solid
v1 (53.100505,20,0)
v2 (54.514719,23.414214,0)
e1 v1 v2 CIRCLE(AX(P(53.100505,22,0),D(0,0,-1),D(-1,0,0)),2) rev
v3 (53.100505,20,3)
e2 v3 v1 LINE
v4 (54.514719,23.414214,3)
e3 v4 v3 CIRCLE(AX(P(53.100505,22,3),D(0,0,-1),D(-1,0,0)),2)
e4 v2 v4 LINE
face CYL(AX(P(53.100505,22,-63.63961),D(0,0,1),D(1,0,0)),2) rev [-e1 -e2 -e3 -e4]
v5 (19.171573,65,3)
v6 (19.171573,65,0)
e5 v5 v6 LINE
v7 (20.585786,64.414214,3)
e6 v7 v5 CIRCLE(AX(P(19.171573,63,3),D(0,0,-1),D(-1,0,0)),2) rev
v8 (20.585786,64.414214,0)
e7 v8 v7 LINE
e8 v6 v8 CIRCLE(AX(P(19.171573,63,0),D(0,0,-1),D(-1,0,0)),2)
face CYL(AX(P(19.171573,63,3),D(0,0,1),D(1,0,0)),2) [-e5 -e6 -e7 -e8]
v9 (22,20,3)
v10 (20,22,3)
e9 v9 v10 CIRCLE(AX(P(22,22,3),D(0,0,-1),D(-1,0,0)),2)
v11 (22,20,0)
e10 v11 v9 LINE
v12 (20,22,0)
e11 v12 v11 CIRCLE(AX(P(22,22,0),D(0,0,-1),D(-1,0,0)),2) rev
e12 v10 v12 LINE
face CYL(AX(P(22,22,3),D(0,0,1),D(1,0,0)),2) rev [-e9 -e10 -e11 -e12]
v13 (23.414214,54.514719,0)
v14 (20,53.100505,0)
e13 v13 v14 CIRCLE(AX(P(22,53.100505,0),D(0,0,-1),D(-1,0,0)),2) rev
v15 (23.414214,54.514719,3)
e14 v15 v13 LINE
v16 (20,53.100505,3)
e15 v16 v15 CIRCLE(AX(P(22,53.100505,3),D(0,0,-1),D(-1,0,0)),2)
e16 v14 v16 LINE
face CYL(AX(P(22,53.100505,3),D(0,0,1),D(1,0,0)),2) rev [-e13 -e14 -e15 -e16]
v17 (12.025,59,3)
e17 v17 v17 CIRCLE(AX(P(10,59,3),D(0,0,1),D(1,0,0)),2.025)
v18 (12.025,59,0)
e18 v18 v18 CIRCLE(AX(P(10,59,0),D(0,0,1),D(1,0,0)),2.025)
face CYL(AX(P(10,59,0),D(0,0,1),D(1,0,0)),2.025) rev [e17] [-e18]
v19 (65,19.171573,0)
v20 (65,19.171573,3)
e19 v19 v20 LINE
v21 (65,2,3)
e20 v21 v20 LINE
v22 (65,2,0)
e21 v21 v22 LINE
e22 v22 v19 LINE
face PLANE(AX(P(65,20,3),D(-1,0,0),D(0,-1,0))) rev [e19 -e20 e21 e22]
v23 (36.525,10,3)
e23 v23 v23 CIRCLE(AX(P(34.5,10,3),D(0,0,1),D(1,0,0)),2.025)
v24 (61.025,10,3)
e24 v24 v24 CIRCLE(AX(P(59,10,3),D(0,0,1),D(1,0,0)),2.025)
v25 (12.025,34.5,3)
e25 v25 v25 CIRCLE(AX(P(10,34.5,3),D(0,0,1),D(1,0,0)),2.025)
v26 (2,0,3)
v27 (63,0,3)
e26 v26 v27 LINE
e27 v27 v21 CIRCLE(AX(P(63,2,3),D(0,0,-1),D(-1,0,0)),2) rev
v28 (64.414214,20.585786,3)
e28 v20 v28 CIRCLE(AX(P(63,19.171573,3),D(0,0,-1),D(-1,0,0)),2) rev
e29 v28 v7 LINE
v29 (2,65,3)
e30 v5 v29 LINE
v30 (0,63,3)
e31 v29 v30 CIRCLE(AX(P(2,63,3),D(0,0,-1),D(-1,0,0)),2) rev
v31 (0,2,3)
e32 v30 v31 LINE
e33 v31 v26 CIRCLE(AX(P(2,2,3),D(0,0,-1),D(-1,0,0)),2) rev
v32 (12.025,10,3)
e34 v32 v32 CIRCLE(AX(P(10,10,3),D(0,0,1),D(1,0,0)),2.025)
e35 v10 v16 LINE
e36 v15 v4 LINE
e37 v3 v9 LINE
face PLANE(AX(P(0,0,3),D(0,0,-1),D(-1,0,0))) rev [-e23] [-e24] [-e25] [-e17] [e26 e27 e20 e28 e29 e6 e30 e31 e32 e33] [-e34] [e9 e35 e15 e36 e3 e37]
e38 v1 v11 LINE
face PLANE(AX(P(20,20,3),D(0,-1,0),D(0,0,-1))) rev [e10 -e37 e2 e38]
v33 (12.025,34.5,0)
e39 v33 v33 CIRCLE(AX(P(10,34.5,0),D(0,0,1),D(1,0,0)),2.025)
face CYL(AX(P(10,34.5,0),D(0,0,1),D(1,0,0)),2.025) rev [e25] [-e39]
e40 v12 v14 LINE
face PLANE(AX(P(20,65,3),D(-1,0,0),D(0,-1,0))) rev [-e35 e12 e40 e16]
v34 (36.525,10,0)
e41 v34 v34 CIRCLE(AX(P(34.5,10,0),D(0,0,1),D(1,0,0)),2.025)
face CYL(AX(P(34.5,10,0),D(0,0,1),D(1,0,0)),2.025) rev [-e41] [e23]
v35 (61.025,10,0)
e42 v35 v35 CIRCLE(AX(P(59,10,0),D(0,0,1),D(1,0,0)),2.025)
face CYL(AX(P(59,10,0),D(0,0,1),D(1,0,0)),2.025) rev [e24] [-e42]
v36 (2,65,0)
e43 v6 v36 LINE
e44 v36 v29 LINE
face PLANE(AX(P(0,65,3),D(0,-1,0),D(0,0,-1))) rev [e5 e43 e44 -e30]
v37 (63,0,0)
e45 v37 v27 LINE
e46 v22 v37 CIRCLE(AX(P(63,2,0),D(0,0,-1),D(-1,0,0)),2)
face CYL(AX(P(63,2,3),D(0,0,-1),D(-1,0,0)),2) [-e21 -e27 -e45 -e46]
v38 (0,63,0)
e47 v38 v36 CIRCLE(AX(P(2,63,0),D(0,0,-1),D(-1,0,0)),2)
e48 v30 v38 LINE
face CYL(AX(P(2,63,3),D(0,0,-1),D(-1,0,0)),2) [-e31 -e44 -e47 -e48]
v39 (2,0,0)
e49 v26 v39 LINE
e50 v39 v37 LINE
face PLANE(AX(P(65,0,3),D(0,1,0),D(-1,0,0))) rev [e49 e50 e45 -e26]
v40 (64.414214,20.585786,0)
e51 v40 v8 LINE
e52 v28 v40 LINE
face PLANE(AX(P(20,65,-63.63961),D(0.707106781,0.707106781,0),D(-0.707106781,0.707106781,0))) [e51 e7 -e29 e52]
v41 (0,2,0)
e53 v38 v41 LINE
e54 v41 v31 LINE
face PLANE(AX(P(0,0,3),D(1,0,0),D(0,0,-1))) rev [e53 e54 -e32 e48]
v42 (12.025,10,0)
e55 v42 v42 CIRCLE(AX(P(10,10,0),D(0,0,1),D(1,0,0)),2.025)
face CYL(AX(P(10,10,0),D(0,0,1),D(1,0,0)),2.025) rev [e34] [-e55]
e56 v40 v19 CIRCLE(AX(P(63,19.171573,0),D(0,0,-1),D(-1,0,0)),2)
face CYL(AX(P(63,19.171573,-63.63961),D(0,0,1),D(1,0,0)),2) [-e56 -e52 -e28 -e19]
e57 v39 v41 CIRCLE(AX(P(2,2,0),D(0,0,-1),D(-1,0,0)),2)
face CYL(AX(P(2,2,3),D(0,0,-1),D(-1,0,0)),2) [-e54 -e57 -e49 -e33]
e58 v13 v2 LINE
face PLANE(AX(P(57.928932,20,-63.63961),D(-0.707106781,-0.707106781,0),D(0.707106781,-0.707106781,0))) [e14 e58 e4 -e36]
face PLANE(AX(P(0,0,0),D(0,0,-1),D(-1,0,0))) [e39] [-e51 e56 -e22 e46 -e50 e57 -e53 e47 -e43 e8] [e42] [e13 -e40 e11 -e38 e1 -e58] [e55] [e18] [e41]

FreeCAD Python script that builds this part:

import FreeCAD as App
import Part
import Sketcher

V = App.Vector


def edges_at(feature, points):
    """Names of the edges that pass closest to the given points."""
    edges = feature.Shape.Edges
    near = lambda p: min(range(len(edges)), key=lambda i: edges[i].distToShape(Part.Vertex(*p))[0])
    return sorted({f"Edge{near(p) + 1}" for p in points})


def add_polygon(sketch, points):
    """Adds a closed chain of lines whose ends are joined by coincident constraints."""
    first, n = sketch.GeometryCount, len(points)
    for a, b in zip(points, points[1:] + points[:1]):
        sketch.addGeometry(Part.LineSegment(App.Vector(*a, 0), App.Vector(*b, 0)), False)
    for i in range(n):
        sketch.addConstraint(Sketcher.Constraint("Coincident", first + i, 2, first + (i + 1) % n, 1))

doc = App.newDocument("Part")
params = doc.addObject("Spreadsheet::Sheet", "Params")
for row, (alias, value) in enumerate([
    ("sketch1_width", "65 mm"),
    ("sketch1_width2", "45 mm"),
    ("pad1_length", "3 mm"),
    ("sketch2_diameter", "4.05 mm"),
    ("pocket1_length", "3 mm"),
    ("pad2_length", "3 mm"),
    ("fillet_radius", "2 mm"),
], start=1):
    params.set(f"A{row}", alias)
    params.set(f"B{row}", "=" + value)
    params.setAlias(f"B{row}", alias)

body = doc.addObject("PartDesign::Body", "Body")

# Sketch on XY plane
sketch1 = body.newObject("Sketcher::SketchObject", "Sketch")
sketch1.AttachmentSupport = (doc.getObject("XY_Plane"), [""])
sketch1.MapMode = "FlatFace"
add_polygon(sketch1, [(0, 65), (0, 0), (65, 0), (65, 20), (20, 20), (20, 65)])  # lines 0-5
sketch1.addConstraint(Sketcher.Constraint("Vertical", 0))
sketch1.addConstraint(Sketcher.Constraint("Horizontal", 1))
sketch1.addConstraint(Sketcher.Constraint("Vertical", 2))
sketch1.addConstraint(Sketcher.Constraint("Horizontal", 3))
sketch1.addConstraint(Sketcher.Constraint("Vertical", 4))
sketch1.addConstraint(Sketcher.Constraint("Horizontal", 5))
sketch1.addConstraint(Sketcher.Constraint("Coincident", 0, 2, -1, 1))
sketch1.addConstraint(Sketcher.Constraint("Equal", 1, 0))
sketch1.addConstraint(Sketcher.Constraint("Equal", 5, 2))
sketch1.addConstraint(Sketcher.Constraint("DistanceX", 1, 1, 1, 2, 65.0))
sketch1.addConstraint(Sketcher.Constraint("DistanceX", 3, 2, 3, 1, 45.0))
sketch1.setExpression("Constraints[15]", "Params.sketch1_width")
sketch1.setExpression("Constraints[16]", "Params.sketch1_width2")
pad1 = body.newObject("PartDesign::Pad", "Pad")
pad1.Profile = sketch1
pad1.setExpression("Length", "Params.pad1_length")

# Sketch on XY plane
sketch2 = body.newObject("Sketcher::SketchObject", "Sketch001")
sketch2.AttachmentSupport = (doc.getObject("XY_Plane"), [""])
sketch2.MapMode = "FlatFace"
sketch2.AttachmentOffset = App.Placement(V(0, 0, 3), App.Rotation())
sketch2.addGeometry(Part.Circle(V(10, 59, 0), V(0, 0, 1), 2), False)
sketch2.addGeometry(Part.Circle(V(10, 34.5, 0), V(0, 0, 1), 2), False)
sketch2.addGeometry(Part.Circle(V(10, 10, 0), V(0, 0, 1), 2), False)
sketch2.addGeometry(Part.Circle(V(34.5, 10, 0), V(0, 0, 1), 2), False)
sketch2.addGeometry(Part.Circle(V(59, 10, 0), V(0, 0, 1), 2), False)
sketch2.addConstraint(Sketcher.Constraint("Equal", 0, 1))
sketch2.addConstraint(Sketcher.Constraint("Equal", 1, 2))
sketch2.addConstraint(Sketcher.Constraint("Equal", 2, 3))
sketch2.addConstraint(Sketcher.Constraint("Equal", 3, 4))
sketch2.addConstraint(Sketcher.Constraint("Horizontal", 2, 3, 3, 3))
sketch2.addConstraint(Sketcher.Constraint("Horizontal", 3, 3, 4, 3))
sketch2.addConstraint(Sketcher.Constraint("Vertical", 0, 3, 1, 3))
sketch2.addConstraint(Sketcher.Constraint("Vertical", 1, 3, 2, 3))
sketch2.addConstraint(Sketcher.Constraint("Diameter", 0, 4.05))
sketch2.addConstraint(Sketcher.Constraint("DistanceX", -1, 1, 0, 3, 10.0))
sketch2.addConstraint(Sketcher.Constraint("DistanceY", -1, 1, 0, 3, 59.0))
sketch2.addConstraint(Sketcher.Constraint("DistanceY", -1, 1, 2, 3, 10.0))
sketch2.addConstraint(Sketcher.Constraint("DistanceX", -1, 1, 4, 3, 59.0))
sketch2.addConstraint(Sketcher.Constraint("DistanceY", -1, 1, 1, 3, 34.5))
sketch2.addConstraint(Sketcher.Constraint("DistanceX", -1, 1, 3, 3, 34.5))
sketch2.setExpression("Constraints[8]", "Params.sketch2_diameter")
pocket1 = body.newObject("PartDesign::Pocket", "Pocket")
pocket1.Profile = sketch2
pocket1.setExpression("Length", "Params.pocket1_length")

# Sketch on XY plane
sketch3 = body.newObject("Sketcher::SketchObject", "Sketch002")
sketch3.AttachmentSupport = (doc.getObject("XY_Plane"), [""])
sketch3.MapMode = "FlatFace"
sketch3.AttachmentOffset = App.Placement(V(0, 0, 3), App.Rotation())
add_polygon(sketch3, [(65, 20), (20, 65), (20, 58), (58, 20)])  # lines 0-3
sketch3.addConstraint(Sketcher.Constraint("Vertical", 1))
sketch3.addConstraint(Sketcher.Constraint("Horizontal", 3))
sketch3.addConstraint(Sketcher.Constraint("Parallel", 0, 2))
sketch3.addConstraint(Sketcher.Constraint("Equal", 3, 1))
sketch3.addConstraint(Sketcher.Constraint("DistanceX", -1, 1, 0, 2, 20.0))
sketch3.addConstraint(Sketcher.Constraint("DistanceY", -1, 1, 0, 2, 65.0))
sketch3.addConstraint(Sketcher.Constraint("DistanceY", -1, 1, 2, 2, 20.0))
sketch3.addConstraint(Sketcher.Constraint("Distance", 2, 53.63961))
pad2 = body.newObject("PartDesign::Pad", "Pad001")
pad2.Profile = sketch3
pad2.setExpression("Length", "Params.pad2_length")
pad2.Reversed = True
doc.recompute()

fillet = body.newObject("PartDesign::Fillet", "Fillet")
fillet.Base = (pad2, edges_at(pad2, [
    (0, 0, 1.5),
    (0, 65, 1.5),
    (20, 65, 1.5),
    (20, 20, 1.5),
    (65, 20, 1.5),
    (65, 0, 1.5),
    (57.929, 20, 1.5),
    (20, 57.929, 1.5),
]))
fillet.setExpression("Radius", "Params.fillet_radius")

doc.recompute()
